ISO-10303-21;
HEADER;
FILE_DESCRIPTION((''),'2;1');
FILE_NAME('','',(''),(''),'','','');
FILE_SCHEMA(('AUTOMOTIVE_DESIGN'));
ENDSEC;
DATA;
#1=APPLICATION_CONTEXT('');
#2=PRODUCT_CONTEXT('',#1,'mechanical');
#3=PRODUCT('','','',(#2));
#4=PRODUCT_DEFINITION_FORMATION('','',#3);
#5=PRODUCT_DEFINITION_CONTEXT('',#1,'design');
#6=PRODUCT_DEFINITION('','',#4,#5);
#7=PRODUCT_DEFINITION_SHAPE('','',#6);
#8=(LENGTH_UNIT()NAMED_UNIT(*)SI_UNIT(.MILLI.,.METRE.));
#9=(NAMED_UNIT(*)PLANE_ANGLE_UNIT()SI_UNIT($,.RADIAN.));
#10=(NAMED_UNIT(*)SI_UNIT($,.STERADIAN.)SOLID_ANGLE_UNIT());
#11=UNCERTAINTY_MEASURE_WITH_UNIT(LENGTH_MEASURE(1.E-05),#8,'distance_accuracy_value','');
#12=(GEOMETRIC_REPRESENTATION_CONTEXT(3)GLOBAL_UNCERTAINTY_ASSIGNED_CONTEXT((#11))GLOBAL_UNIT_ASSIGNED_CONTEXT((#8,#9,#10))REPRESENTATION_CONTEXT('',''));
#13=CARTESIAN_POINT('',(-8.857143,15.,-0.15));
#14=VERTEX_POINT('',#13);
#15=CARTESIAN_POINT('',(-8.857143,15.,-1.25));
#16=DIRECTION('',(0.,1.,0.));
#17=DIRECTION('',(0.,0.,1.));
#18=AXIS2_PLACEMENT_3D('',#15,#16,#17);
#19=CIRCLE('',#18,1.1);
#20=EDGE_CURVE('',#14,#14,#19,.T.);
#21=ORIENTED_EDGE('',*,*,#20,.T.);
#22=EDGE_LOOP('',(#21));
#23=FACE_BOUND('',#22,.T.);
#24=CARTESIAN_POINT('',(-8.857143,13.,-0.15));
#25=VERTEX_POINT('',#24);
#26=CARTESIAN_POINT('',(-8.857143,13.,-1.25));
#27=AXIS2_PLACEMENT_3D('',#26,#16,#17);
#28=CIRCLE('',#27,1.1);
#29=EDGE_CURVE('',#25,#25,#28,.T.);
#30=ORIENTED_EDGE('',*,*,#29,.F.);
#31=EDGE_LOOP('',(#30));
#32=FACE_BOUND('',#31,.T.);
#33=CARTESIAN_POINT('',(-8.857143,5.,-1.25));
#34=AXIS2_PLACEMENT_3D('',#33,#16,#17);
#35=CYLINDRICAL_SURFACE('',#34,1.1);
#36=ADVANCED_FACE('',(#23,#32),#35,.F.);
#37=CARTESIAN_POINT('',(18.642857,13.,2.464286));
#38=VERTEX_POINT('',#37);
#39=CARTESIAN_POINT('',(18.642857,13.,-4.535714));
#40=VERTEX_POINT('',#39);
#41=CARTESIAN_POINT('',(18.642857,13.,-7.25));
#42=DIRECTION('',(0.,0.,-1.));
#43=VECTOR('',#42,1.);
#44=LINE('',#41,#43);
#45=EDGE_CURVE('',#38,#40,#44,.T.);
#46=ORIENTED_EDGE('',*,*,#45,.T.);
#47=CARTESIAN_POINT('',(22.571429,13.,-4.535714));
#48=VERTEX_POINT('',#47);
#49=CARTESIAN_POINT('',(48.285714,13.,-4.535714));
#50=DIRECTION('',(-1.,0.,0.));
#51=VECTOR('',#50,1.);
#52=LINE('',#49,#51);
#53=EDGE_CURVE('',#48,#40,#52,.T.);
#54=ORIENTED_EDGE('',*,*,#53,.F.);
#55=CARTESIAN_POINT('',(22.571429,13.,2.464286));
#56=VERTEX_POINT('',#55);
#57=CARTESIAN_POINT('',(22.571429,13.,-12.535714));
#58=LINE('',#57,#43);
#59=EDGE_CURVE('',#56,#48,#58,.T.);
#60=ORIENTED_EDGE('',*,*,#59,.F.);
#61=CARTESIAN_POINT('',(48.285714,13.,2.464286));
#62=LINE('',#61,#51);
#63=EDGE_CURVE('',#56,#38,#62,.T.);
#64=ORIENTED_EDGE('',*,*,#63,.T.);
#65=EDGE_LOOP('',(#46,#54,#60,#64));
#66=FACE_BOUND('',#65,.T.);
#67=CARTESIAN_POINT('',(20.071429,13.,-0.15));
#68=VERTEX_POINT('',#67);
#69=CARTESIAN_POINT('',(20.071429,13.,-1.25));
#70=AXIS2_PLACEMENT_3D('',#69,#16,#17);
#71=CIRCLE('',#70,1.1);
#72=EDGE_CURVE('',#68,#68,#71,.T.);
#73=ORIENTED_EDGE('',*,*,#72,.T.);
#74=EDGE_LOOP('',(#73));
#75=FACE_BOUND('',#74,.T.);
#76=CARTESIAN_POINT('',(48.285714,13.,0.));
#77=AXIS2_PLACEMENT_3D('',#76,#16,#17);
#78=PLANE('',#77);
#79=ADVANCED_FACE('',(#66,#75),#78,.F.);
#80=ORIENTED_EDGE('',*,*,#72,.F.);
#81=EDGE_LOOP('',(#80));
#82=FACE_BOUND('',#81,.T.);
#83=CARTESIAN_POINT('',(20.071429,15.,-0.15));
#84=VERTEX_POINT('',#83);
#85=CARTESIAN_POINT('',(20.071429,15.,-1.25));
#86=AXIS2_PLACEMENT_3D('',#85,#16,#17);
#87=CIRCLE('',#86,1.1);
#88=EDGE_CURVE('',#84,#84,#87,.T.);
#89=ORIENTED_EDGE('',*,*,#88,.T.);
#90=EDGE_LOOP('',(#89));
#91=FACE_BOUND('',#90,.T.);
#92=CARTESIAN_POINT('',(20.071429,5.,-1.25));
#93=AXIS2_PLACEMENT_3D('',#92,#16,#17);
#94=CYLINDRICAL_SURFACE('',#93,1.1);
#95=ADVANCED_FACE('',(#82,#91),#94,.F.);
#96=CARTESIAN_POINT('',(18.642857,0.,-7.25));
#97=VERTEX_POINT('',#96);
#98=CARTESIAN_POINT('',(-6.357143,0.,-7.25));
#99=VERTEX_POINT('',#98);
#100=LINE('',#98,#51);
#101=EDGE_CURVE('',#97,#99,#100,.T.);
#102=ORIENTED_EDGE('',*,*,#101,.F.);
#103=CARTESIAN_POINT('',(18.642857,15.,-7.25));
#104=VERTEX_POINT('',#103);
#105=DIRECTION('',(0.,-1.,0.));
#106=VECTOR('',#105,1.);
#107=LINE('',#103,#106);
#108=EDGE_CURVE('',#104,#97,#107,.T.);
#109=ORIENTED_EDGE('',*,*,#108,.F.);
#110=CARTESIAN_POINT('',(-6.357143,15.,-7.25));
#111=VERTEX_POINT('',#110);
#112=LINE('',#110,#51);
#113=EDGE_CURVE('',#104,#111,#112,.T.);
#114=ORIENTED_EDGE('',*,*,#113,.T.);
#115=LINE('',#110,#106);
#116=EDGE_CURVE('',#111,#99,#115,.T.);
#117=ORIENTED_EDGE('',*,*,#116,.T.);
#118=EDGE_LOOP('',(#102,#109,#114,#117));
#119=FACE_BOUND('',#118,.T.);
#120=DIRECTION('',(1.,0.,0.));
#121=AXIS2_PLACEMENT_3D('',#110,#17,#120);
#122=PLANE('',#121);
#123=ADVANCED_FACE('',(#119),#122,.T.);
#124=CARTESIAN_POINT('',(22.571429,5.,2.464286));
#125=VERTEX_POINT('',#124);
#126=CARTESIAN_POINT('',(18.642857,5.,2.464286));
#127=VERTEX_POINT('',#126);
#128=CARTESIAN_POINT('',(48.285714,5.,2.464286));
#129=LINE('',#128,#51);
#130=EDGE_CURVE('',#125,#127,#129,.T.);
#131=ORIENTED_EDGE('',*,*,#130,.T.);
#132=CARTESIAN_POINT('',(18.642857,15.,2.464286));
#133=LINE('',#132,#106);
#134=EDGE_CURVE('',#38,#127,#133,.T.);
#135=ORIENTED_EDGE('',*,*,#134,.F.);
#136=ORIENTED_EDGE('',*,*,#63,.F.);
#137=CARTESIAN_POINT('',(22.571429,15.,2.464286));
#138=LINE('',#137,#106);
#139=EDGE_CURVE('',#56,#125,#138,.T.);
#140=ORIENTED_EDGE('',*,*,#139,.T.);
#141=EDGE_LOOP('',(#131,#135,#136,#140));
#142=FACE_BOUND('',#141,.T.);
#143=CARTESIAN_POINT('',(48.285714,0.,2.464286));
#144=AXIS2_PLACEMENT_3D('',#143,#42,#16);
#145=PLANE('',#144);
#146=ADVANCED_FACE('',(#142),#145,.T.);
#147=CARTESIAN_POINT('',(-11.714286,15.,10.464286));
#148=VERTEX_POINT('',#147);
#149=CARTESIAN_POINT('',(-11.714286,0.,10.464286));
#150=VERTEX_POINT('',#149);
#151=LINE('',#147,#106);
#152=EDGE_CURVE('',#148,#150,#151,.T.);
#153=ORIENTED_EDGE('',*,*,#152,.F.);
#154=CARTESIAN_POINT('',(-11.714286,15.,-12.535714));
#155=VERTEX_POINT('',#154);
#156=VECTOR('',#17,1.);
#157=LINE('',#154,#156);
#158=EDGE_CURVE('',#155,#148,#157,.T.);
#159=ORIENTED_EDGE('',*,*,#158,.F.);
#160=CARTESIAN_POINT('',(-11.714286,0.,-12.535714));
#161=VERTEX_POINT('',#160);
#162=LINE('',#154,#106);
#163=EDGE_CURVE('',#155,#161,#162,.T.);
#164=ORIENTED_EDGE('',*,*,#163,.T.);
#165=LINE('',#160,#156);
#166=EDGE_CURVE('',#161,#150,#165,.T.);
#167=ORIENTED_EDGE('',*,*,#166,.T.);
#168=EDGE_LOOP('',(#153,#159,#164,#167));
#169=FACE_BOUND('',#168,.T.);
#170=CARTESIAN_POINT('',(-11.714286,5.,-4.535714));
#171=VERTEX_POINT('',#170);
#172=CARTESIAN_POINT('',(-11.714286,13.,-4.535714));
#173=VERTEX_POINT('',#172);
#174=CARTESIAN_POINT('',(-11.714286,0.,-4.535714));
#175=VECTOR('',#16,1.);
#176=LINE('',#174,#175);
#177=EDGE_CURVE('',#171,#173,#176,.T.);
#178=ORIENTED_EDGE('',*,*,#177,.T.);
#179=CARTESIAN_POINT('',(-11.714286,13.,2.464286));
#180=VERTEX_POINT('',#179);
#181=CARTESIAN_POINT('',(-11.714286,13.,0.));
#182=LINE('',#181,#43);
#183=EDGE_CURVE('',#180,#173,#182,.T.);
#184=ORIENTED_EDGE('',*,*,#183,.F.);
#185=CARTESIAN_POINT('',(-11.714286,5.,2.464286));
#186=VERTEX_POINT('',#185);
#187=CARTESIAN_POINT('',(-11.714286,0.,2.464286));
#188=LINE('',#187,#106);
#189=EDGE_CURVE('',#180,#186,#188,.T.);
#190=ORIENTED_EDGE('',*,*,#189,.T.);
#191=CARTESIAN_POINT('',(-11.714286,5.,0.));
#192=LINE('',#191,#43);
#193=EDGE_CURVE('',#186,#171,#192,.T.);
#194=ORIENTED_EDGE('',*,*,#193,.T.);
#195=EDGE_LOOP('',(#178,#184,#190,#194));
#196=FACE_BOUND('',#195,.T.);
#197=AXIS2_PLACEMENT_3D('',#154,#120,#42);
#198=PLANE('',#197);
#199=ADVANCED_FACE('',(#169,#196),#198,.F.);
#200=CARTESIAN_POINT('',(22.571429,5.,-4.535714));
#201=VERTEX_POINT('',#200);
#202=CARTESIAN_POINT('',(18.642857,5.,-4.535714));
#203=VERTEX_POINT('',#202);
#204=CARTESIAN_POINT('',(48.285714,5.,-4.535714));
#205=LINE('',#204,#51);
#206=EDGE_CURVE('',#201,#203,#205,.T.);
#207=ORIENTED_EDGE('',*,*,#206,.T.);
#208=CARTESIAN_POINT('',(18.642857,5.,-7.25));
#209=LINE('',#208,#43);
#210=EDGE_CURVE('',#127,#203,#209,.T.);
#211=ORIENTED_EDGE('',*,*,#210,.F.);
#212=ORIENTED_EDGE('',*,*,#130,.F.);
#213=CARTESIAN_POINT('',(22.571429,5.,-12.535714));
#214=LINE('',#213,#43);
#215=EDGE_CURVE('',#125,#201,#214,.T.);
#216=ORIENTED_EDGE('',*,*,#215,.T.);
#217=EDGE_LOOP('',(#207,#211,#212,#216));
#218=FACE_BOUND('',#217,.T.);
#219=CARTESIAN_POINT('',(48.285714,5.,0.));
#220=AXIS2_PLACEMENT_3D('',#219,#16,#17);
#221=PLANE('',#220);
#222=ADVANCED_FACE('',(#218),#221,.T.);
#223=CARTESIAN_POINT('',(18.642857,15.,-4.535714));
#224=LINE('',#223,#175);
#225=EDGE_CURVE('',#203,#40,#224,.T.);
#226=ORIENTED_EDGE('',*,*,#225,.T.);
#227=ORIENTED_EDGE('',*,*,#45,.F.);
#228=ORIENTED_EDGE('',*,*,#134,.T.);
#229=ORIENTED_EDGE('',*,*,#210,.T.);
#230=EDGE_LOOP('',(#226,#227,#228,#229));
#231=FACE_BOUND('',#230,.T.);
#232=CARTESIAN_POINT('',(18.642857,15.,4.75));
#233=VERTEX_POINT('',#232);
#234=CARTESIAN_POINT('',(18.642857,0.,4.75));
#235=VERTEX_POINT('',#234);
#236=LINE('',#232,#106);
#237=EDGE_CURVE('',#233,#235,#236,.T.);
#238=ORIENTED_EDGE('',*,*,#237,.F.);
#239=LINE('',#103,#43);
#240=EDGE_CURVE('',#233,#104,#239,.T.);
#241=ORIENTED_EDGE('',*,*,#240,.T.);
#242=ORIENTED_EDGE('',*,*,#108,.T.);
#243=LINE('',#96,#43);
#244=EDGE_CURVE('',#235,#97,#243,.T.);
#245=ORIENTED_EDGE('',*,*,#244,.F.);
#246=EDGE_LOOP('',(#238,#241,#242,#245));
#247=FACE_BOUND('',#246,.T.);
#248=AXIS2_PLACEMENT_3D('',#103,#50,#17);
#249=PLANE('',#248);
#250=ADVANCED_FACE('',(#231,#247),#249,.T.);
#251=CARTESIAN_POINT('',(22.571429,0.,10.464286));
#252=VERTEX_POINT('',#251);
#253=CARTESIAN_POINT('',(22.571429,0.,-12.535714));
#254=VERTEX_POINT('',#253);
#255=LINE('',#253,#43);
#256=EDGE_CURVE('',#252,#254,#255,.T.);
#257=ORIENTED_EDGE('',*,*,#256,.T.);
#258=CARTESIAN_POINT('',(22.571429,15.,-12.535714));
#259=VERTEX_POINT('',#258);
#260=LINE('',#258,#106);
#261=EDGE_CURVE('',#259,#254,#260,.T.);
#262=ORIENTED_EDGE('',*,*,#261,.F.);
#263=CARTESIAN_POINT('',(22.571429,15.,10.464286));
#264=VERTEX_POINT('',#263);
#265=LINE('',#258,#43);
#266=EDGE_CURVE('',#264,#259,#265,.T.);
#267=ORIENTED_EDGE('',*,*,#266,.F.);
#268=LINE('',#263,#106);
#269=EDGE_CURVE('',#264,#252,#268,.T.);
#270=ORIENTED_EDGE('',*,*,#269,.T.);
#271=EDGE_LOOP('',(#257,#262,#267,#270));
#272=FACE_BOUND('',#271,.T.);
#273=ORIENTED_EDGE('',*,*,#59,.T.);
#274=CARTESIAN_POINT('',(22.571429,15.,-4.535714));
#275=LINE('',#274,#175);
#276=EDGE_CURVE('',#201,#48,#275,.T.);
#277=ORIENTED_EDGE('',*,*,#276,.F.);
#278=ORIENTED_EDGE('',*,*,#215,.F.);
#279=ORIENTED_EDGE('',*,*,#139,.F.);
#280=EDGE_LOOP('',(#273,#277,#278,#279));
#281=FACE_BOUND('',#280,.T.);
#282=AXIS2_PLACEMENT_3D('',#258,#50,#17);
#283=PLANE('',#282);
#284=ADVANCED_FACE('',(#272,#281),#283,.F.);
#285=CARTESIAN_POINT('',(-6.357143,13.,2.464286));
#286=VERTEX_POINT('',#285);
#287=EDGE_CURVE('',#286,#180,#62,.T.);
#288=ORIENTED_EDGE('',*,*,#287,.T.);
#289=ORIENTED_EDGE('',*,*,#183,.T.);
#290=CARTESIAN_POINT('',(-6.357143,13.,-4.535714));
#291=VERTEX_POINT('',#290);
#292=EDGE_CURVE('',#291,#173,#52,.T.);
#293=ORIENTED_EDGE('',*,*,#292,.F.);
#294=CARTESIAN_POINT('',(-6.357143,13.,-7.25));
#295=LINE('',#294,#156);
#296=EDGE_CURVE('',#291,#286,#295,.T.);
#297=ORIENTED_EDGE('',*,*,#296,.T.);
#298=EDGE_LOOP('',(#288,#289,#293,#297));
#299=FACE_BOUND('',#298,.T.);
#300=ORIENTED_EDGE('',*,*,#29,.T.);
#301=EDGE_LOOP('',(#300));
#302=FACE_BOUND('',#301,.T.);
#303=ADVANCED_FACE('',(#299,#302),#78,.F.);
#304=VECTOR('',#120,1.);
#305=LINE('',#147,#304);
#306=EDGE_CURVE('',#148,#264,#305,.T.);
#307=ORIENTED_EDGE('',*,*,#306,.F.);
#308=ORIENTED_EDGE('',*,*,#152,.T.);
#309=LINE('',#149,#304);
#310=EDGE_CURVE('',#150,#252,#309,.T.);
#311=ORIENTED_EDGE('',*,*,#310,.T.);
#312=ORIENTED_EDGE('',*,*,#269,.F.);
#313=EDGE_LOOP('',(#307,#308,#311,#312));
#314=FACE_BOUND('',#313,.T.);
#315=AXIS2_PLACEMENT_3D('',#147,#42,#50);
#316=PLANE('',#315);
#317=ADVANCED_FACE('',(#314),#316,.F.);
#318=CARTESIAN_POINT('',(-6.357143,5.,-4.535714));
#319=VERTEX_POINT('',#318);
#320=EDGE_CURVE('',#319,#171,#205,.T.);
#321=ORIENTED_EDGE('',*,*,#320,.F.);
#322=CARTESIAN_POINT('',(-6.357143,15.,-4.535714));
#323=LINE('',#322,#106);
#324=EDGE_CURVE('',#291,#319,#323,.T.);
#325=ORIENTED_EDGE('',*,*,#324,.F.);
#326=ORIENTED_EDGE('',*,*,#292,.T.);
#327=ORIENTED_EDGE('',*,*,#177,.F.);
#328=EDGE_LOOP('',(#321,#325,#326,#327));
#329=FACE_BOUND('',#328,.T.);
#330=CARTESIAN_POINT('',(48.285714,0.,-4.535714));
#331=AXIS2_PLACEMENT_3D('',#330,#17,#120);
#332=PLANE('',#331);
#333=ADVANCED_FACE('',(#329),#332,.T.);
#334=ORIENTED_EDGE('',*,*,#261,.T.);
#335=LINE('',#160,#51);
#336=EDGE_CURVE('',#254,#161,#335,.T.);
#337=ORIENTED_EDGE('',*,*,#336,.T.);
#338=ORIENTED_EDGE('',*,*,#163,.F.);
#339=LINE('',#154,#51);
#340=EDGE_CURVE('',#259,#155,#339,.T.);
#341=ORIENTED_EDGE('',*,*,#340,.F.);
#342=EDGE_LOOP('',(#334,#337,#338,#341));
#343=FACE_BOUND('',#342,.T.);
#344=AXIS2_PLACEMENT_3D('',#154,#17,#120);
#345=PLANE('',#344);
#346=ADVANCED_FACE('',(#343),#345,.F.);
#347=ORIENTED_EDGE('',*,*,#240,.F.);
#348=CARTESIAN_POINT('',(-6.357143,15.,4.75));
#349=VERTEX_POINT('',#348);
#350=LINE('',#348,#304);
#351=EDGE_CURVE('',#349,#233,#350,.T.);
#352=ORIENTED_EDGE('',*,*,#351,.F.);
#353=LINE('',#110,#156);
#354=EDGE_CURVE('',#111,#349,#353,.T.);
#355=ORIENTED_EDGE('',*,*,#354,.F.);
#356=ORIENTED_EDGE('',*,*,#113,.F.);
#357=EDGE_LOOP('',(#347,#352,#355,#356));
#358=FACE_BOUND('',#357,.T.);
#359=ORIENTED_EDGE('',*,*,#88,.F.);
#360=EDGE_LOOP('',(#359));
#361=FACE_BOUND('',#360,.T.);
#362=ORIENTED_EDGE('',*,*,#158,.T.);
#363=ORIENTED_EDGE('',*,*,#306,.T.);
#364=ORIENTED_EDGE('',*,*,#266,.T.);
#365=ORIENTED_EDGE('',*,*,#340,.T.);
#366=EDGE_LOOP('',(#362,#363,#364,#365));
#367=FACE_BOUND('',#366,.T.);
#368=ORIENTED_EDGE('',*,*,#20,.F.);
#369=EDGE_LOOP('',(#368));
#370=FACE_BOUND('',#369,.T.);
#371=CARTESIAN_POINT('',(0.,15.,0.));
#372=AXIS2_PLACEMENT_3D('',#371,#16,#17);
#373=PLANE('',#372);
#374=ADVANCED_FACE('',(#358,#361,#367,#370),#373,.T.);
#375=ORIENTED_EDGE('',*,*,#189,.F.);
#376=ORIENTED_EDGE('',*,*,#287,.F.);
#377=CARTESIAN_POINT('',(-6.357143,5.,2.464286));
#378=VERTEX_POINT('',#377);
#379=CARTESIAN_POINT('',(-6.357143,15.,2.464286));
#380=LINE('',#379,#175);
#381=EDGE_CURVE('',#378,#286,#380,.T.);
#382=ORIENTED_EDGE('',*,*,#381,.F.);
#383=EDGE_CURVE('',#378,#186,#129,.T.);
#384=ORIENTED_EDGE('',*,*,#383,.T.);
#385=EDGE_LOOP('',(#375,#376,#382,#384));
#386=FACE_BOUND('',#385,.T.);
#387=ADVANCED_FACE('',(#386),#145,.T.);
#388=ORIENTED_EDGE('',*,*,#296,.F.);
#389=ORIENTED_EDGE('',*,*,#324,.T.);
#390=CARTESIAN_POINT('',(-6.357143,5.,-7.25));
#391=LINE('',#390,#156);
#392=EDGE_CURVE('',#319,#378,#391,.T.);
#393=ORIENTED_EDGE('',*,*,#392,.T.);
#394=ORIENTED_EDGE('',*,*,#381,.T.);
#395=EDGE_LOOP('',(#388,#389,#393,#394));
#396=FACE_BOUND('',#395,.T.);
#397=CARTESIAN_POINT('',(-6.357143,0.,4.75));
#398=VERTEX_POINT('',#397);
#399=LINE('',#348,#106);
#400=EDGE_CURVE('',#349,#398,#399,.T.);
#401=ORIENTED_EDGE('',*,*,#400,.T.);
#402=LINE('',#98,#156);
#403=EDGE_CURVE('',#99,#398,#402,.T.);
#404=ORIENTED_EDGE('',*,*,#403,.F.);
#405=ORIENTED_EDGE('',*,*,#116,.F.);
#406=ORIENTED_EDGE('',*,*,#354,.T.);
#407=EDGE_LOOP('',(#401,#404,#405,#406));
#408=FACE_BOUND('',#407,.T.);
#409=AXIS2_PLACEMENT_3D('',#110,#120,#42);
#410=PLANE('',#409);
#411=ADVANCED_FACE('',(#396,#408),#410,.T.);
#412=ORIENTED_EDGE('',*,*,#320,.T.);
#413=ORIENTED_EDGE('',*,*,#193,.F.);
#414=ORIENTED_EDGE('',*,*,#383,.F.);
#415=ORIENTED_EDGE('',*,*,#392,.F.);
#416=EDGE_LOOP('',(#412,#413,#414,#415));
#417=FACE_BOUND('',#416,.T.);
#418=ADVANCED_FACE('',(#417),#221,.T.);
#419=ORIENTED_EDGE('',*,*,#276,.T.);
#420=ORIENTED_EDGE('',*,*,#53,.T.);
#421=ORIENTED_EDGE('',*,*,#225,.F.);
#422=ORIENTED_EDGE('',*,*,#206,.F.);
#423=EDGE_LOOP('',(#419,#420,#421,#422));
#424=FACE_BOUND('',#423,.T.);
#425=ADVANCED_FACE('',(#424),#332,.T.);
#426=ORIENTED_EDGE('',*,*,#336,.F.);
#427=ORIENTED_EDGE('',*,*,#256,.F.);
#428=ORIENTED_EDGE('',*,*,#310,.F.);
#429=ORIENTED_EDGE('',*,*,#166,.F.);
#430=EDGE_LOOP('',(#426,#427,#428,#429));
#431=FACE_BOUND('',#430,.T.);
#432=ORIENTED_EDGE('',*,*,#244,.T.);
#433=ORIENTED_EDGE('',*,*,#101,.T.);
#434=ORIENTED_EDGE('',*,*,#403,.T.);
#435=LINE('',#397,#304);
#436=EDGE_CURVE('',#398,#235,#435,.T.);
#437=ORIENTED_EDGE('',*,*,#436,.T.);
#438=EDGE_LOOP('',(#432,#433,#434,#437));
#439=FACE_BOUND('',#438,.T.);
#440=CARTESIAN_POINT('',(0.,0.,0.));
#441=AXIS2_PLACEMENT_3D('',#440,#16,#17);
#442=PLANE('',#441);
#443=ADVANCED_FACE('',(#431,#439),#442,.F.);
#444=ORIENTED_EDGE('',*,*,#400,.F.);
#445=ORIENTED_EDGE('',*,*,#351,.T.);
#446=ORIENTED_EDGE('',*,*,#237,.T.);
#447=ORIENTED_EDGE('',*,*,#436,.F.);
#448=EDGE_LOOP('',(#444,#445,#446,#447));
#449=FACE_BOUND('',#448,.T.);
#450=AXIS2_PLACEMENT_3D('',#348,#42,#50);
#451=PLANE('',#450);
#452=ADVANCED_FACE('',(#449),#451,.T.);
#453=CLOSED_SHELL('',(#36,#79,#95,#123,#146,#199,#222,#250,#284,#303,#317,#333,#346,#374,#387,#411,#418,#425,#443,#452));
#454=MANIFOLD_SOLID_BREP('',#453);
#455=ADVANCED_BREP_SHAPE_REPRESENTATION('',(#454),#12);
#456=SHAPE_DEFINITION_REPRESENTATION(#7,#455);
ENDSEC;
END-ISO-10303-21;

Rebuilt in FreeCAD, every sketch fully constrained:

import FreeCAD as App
import Part
import Sketcher


def add_polygon(sketch, points):
    """Adds a closed chain of lines whose ends are joined by coincident constraints."""
    first, n = sketch.GeometryCount, len(points)
    for a, b in zip(points, points[1:] + points[:1]):
        sketch.addGeometry(Part.LineSegment(App.Vector(*a, 0), App.Vector(*b, 0)), False)
    for i in range(n):
        sketch.addConstraint(Sketcher.Constraint("Coincident", first + i, 2, first + (i + 1) % n, 1))

doc = App.newDocument("Part")
body = doc.addObject("PartDesign::Body", "Body")

# Sketch on XZ plane
sketch1 = doc.addObject("Sketcher::SketchObject", "Sketch")
body.addObject(sketch1)
sketch1.AttachmentSupport = (doc.XZ_Plane, [""])
sketch1.MapMode = "FlatFace"
add_polygon(sketch1, [(-12, -13), (-12, 10), (23, 10), (23, -13)])  # lines 0-3
add_polygon(sketch1, [(19, 5), (-6, 5), (-6, -7), (19, -7)])  # lines 4-7
sketch1.addConstraint([
    Sketcher.Constraint("Vertical", 0),
    Sketcher.Constraint("Horizontal", 1),
    Sketcher.Constraint("Vertical", 2),
    Sketcher.Constraint("Horizontal", 3),
    Sketcher.Constraint("Horizontal", 4),
    Sketcher.Constraint("Vertical", 5),
    Sketcher.Constraint("Horizontal", 6),
    Sketcher.Constraint("Vertical", 7),
    Sketcher.Constraint("DistanceX", 4, 2, 4, 1, 25.0),
    Sketcher.Constraint("DistanceY", 0, 1, 0, 2, 23.0),
    Sketcher.Constraint("DistanceY", 5, 2, 5, 1, 12.0),
    Sketcher.Constraint("DistanceY", -1, 1, 4, 2, 4.75),
    Sketcher.Constraint("DistanceX", 1, 1, 1, 2, 34.285714),
    Sketcher.Constraint("DistanceX", -1, 1, 1, 2, 22.571429),
    Sketcher.Constraint("DistanceX", 4, 2, 1, 2, 28.928571),
    Sketcher.Constraint("DistanceY", -1, 1, 0, 2, 10.464286),
])
pad1 = doc.addObject("PartDesign::Pad", "Pad")
body.addObject(pad1)
pad1.Profile = sketch1
pad1.Length = 15
pad1.Reversed = True

# Sketch on YZ plane
sketch2 = doc.addObject("Sketcher::SketchObject", "Sketch001")
body.addObject(sketch2)
sketch2.AttachmentSupport = (doc.YZ_Plane, [""])
sketch2.MapMode = "FlatFace"
sketch2.AttachmentOffset = App.Placement(App.Vector(0, 0, -11.714286), App.Rotation())
add_polygon(sketch2, [(13, -5), (5, -5), (5, 2), (13, 2)])  # lines 0-3
sketch2.addConstraint([
    Sketcher.Constraint("Horizontal", 0),
    Sketcher.Constraint("Vertical", 1),
    Sketcher.Constraint("Horizontal", 2),
    Sketcher.Constraint("Vertical", 3),
    Sketcher.Constraint("DistanceX", 0, 2, 0, 1, 8.0),
    Sketcher.Constraint("DistanceY", 1, 1, 1, 2, 7.0),
    Sketcher.Constraint("DistanceX", -1, 1, 0, 2, 5.0),
    Sketcher.Constraint("DistanceY", 0, 2, -1, 1, 4.535714),
])
pocket1 = doc.addObject("PartDesign::Pocket", "Pocket")
body.addObject(pocket1)
pocket1.Profile = sketch2
pocket1.Length = 60
pocket1.Reversed = True

# Sketch on XZ plane
sketch3 = doc.addObject("Sketcher::SketchObject", "Sketch002")
body.addObject(sketch3)
sketch3.AttachmentSupport = (doc.XZ_Plane, [""])
sketch3.MapMode = "FlatFace"
sketch3.AttachmentOffset = App.Placement(App.Vector(0, 0, -15), App.Rotation())
sketch3.addGeometry([
    Part.Circle(App.Vector(-8.9, -1.2, 0), App.Vector(0, 0, 1), 1.1),
    Part.Circle(App.Vector(20.1, -1.2, 0), App.Vector(0, 0, 1), 1.1),
], False)
sketch3.addConstraint([
    Sketcher.Constraint("Equal", 0, 1),
    Sketcher.Constraint("Horizontal", 0, 3, 1, 3),
    Sketcher.Constraint("Diameter", 0, 2.2),
    Sketcher.Constraint("DistanceY", 0, 3, -1, 1, 1.25),
    Sketcher.Constraint("DistanceX", -1, 1, 1, 3, 20.071429),
    Sketcher.Constraint("DistanceX", 0, 3, 1, 3, 28.928571),
])
pocket2 = doc.addObject("PartDesign::Pocket", "Pocket001")
body.addObject(pocket2)
pocket2.Profile = sketch3
pocket2.Length = 10
pocket2.Reversed = True

doc.recompute()
